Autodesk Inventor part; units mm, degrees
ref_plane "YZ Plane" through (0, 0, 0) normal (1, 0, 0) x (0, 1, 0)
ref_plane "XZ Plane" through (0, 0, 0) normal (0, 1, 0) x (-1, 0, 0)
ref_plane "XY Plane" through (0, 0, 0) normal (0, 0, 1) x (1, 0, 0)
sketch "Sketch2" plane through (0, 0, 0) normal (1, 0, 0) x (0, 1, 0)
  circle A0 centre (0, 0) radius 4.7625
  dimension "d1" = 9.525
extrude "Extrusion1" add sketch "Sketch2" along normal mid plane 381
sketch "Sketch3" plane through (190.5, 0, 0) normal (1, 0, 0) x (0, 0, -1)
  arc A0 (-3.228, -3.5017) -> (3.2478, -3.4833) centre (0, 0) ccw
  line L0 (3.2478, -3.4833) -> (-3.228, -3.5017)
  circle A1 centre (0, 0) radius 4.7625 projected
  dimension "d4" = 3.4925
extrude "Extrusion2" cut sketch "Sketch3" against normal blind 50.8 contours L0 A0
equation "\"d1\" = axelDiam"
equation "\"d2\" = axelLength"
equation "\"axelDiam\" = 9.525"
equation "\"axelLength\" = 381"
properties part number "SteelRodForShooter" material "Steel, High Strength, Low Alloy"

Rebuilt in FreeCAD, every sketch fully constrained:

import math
import FreeCAD as App
import Part
import Sketcher

V = App.Vector
Q = App.Units.Quantity

doc = App.newDocument("Part")
body = doc.addObject("PartDesign::Body", "Body")

sketch1 = body.newObject("Sketcher::SketchObject", "Sketch")
sketch1.AttachmentSupport = (doc.getObject("YZ_Plane"), [""])
sketch1.MapMode = "FlatFace"
sketch1.addGeometry(Part.Circle(V(0, 0, 0), V(0, 0, 1), 4.8), False)
sketch1.addConstraint(Sketcher.Constraint("Coincident", 0, 3, -1, 1))
sketch1.addConstraint(Sketcher.Constraint("Diameter", 0, Q("0.375 in")))
pad1 = body.newObject("PartDesign::Pad", "Pad")
pad1.Profile = sketch1
pad1.Length = Q("15 in")
pad1.Midplane = True

sketch2 = body.newObject("Sketcher::SketchObject", "Sketch001")
sketch2.AttachmentSupport = (doc.getObject("YZ_Plane"), [""])
sketch2.MapMode = "FlatFace"
sketch2.AttachmentOffset = App.Placement(V(0, 0, 7.5 * 25.4), App.Rotation())
sketch2.addGeometry(Part.LineSegment(V(-3.5, -3.2, 0), V(-3.5, 3.2, 0)), False)
sketch2.addGeometry(Part.ArcOfCircle(Part.Circle(V(0, 0, 0), V(0, 0, 1), 4.8), math.radians(137), math.radians(223)), False)
sketch2.addConstraint(Sketcher.Constraint("Coincident", 0, 1, 1, 2))
sketch2.addConstraint(Sketcher.Constraint("Coincident", 1, 1, 0, 2))
sketch2.addConstraint(Sketcher.Constraint("Coincident", 1, 3, -1, 1))
sketch2.addConstraint(Sketcher.Constraint("Radius", 1, Q("0.1875 in")))
sketch2.addConstraint(Sketcher.Constraint("Distance", 0, Q("6.4758 mm")))
sketch2.addConstraint(Sketcher.Constraint("DistanceX", 0, 1, -1, 1, Q("3.4833 mm")))
pocket1 = body.newObject("PartDesign::Pocket", "Pocket")
pocket1.Profile = sketch2
pocket1.Length = Q("2 in")

doc.recompute()
